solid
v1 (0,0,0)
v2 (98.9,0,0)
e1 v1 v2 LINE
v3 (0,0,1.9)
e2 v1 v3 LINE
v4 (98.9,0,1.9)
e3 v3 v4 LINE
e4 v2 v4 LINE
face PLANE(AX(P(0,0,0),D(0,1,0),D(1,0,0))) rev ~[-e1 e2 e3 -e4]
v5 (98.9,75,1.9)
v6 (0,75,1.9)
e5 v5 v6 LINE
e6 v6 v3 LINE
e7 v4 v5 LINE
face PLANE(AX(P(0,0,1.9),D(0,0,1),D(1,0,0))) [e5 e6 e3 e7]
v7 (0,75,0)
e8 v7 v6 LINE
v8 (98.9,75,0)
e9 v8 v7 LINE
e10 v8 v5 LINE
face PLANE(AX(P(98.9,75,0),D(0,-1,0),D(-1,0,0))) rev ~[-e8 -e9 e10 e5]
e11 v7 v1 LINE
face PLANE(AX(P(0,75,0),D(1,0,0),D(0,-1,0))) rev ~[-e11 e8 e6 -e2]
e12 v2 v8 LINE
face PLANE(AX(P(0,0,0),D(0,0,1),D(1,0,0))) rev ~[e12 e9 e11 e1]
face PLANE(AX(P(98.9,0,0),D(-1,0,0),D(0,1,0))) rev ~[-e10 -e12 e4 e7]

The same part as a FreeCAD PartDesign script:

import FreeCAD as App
import Part
import Sketcher

V = App.Vector


def add_polygon(sketch, points):
    """Adds a closed chain of lines whose ends are joined by coincident constraints."""
    first, n = sketch.GeometryCount, len(points)
    for a, b in zip(points, points[1:] + points[:1]):
        sketch.addGeometry(Part.LineSegment(App.Vector(*a, 0), App.Vector(*b, 0)), False)
    for i in range(n):
        sketch.addConstraint(Sketcher.Constraint("Coincident", first + i, 2, first + (i + 1) % n, 1))

doc = App.newDocument("Part")
body = doc.addObject("PartDesign::Body", "Body")

# Sketch on XY plane
sketch1 = body.newObject("Sketcher::SketchObject", "Sketch")
sketch1.AttachmentSupport = (doc.getObject("XY_Plane"), [""])
sketch1.MapMode = "FlatFace"
add_polygon(sketch1, [(0, 75), (0, 0), (99, 0), (99, 75)])  # lines 0-3
sketch1.addConstraint(Sketcher.Constraint("Vertical", 0))
sketch1.addConstraint(Sketcher.Constraint("Horizontal", 1))
sketch1.addConstraint(Sketcher.Constraint("Vertical", 2))
sketch1.addConstraint(Sketcher.Constraint("Horizontal", 3))
sketch1.addConstraint(Sketcher.Constraint("Coincident", 0, 2, -1, 1))
sketch1.addConstraint(Sketcher.Constraint("DistanceY", 0, 2, 0, 1, 75.0))
sketch1.addConstraint(Sketcher.Constraint("DistanceX", 1, 1, 1, 2, 98.9))
pad1 = body.newObject("PartDesign::Pad", "Pad")
pad1.Profile = sketch1
pad1.Length = 1.9

doc.recompute()
